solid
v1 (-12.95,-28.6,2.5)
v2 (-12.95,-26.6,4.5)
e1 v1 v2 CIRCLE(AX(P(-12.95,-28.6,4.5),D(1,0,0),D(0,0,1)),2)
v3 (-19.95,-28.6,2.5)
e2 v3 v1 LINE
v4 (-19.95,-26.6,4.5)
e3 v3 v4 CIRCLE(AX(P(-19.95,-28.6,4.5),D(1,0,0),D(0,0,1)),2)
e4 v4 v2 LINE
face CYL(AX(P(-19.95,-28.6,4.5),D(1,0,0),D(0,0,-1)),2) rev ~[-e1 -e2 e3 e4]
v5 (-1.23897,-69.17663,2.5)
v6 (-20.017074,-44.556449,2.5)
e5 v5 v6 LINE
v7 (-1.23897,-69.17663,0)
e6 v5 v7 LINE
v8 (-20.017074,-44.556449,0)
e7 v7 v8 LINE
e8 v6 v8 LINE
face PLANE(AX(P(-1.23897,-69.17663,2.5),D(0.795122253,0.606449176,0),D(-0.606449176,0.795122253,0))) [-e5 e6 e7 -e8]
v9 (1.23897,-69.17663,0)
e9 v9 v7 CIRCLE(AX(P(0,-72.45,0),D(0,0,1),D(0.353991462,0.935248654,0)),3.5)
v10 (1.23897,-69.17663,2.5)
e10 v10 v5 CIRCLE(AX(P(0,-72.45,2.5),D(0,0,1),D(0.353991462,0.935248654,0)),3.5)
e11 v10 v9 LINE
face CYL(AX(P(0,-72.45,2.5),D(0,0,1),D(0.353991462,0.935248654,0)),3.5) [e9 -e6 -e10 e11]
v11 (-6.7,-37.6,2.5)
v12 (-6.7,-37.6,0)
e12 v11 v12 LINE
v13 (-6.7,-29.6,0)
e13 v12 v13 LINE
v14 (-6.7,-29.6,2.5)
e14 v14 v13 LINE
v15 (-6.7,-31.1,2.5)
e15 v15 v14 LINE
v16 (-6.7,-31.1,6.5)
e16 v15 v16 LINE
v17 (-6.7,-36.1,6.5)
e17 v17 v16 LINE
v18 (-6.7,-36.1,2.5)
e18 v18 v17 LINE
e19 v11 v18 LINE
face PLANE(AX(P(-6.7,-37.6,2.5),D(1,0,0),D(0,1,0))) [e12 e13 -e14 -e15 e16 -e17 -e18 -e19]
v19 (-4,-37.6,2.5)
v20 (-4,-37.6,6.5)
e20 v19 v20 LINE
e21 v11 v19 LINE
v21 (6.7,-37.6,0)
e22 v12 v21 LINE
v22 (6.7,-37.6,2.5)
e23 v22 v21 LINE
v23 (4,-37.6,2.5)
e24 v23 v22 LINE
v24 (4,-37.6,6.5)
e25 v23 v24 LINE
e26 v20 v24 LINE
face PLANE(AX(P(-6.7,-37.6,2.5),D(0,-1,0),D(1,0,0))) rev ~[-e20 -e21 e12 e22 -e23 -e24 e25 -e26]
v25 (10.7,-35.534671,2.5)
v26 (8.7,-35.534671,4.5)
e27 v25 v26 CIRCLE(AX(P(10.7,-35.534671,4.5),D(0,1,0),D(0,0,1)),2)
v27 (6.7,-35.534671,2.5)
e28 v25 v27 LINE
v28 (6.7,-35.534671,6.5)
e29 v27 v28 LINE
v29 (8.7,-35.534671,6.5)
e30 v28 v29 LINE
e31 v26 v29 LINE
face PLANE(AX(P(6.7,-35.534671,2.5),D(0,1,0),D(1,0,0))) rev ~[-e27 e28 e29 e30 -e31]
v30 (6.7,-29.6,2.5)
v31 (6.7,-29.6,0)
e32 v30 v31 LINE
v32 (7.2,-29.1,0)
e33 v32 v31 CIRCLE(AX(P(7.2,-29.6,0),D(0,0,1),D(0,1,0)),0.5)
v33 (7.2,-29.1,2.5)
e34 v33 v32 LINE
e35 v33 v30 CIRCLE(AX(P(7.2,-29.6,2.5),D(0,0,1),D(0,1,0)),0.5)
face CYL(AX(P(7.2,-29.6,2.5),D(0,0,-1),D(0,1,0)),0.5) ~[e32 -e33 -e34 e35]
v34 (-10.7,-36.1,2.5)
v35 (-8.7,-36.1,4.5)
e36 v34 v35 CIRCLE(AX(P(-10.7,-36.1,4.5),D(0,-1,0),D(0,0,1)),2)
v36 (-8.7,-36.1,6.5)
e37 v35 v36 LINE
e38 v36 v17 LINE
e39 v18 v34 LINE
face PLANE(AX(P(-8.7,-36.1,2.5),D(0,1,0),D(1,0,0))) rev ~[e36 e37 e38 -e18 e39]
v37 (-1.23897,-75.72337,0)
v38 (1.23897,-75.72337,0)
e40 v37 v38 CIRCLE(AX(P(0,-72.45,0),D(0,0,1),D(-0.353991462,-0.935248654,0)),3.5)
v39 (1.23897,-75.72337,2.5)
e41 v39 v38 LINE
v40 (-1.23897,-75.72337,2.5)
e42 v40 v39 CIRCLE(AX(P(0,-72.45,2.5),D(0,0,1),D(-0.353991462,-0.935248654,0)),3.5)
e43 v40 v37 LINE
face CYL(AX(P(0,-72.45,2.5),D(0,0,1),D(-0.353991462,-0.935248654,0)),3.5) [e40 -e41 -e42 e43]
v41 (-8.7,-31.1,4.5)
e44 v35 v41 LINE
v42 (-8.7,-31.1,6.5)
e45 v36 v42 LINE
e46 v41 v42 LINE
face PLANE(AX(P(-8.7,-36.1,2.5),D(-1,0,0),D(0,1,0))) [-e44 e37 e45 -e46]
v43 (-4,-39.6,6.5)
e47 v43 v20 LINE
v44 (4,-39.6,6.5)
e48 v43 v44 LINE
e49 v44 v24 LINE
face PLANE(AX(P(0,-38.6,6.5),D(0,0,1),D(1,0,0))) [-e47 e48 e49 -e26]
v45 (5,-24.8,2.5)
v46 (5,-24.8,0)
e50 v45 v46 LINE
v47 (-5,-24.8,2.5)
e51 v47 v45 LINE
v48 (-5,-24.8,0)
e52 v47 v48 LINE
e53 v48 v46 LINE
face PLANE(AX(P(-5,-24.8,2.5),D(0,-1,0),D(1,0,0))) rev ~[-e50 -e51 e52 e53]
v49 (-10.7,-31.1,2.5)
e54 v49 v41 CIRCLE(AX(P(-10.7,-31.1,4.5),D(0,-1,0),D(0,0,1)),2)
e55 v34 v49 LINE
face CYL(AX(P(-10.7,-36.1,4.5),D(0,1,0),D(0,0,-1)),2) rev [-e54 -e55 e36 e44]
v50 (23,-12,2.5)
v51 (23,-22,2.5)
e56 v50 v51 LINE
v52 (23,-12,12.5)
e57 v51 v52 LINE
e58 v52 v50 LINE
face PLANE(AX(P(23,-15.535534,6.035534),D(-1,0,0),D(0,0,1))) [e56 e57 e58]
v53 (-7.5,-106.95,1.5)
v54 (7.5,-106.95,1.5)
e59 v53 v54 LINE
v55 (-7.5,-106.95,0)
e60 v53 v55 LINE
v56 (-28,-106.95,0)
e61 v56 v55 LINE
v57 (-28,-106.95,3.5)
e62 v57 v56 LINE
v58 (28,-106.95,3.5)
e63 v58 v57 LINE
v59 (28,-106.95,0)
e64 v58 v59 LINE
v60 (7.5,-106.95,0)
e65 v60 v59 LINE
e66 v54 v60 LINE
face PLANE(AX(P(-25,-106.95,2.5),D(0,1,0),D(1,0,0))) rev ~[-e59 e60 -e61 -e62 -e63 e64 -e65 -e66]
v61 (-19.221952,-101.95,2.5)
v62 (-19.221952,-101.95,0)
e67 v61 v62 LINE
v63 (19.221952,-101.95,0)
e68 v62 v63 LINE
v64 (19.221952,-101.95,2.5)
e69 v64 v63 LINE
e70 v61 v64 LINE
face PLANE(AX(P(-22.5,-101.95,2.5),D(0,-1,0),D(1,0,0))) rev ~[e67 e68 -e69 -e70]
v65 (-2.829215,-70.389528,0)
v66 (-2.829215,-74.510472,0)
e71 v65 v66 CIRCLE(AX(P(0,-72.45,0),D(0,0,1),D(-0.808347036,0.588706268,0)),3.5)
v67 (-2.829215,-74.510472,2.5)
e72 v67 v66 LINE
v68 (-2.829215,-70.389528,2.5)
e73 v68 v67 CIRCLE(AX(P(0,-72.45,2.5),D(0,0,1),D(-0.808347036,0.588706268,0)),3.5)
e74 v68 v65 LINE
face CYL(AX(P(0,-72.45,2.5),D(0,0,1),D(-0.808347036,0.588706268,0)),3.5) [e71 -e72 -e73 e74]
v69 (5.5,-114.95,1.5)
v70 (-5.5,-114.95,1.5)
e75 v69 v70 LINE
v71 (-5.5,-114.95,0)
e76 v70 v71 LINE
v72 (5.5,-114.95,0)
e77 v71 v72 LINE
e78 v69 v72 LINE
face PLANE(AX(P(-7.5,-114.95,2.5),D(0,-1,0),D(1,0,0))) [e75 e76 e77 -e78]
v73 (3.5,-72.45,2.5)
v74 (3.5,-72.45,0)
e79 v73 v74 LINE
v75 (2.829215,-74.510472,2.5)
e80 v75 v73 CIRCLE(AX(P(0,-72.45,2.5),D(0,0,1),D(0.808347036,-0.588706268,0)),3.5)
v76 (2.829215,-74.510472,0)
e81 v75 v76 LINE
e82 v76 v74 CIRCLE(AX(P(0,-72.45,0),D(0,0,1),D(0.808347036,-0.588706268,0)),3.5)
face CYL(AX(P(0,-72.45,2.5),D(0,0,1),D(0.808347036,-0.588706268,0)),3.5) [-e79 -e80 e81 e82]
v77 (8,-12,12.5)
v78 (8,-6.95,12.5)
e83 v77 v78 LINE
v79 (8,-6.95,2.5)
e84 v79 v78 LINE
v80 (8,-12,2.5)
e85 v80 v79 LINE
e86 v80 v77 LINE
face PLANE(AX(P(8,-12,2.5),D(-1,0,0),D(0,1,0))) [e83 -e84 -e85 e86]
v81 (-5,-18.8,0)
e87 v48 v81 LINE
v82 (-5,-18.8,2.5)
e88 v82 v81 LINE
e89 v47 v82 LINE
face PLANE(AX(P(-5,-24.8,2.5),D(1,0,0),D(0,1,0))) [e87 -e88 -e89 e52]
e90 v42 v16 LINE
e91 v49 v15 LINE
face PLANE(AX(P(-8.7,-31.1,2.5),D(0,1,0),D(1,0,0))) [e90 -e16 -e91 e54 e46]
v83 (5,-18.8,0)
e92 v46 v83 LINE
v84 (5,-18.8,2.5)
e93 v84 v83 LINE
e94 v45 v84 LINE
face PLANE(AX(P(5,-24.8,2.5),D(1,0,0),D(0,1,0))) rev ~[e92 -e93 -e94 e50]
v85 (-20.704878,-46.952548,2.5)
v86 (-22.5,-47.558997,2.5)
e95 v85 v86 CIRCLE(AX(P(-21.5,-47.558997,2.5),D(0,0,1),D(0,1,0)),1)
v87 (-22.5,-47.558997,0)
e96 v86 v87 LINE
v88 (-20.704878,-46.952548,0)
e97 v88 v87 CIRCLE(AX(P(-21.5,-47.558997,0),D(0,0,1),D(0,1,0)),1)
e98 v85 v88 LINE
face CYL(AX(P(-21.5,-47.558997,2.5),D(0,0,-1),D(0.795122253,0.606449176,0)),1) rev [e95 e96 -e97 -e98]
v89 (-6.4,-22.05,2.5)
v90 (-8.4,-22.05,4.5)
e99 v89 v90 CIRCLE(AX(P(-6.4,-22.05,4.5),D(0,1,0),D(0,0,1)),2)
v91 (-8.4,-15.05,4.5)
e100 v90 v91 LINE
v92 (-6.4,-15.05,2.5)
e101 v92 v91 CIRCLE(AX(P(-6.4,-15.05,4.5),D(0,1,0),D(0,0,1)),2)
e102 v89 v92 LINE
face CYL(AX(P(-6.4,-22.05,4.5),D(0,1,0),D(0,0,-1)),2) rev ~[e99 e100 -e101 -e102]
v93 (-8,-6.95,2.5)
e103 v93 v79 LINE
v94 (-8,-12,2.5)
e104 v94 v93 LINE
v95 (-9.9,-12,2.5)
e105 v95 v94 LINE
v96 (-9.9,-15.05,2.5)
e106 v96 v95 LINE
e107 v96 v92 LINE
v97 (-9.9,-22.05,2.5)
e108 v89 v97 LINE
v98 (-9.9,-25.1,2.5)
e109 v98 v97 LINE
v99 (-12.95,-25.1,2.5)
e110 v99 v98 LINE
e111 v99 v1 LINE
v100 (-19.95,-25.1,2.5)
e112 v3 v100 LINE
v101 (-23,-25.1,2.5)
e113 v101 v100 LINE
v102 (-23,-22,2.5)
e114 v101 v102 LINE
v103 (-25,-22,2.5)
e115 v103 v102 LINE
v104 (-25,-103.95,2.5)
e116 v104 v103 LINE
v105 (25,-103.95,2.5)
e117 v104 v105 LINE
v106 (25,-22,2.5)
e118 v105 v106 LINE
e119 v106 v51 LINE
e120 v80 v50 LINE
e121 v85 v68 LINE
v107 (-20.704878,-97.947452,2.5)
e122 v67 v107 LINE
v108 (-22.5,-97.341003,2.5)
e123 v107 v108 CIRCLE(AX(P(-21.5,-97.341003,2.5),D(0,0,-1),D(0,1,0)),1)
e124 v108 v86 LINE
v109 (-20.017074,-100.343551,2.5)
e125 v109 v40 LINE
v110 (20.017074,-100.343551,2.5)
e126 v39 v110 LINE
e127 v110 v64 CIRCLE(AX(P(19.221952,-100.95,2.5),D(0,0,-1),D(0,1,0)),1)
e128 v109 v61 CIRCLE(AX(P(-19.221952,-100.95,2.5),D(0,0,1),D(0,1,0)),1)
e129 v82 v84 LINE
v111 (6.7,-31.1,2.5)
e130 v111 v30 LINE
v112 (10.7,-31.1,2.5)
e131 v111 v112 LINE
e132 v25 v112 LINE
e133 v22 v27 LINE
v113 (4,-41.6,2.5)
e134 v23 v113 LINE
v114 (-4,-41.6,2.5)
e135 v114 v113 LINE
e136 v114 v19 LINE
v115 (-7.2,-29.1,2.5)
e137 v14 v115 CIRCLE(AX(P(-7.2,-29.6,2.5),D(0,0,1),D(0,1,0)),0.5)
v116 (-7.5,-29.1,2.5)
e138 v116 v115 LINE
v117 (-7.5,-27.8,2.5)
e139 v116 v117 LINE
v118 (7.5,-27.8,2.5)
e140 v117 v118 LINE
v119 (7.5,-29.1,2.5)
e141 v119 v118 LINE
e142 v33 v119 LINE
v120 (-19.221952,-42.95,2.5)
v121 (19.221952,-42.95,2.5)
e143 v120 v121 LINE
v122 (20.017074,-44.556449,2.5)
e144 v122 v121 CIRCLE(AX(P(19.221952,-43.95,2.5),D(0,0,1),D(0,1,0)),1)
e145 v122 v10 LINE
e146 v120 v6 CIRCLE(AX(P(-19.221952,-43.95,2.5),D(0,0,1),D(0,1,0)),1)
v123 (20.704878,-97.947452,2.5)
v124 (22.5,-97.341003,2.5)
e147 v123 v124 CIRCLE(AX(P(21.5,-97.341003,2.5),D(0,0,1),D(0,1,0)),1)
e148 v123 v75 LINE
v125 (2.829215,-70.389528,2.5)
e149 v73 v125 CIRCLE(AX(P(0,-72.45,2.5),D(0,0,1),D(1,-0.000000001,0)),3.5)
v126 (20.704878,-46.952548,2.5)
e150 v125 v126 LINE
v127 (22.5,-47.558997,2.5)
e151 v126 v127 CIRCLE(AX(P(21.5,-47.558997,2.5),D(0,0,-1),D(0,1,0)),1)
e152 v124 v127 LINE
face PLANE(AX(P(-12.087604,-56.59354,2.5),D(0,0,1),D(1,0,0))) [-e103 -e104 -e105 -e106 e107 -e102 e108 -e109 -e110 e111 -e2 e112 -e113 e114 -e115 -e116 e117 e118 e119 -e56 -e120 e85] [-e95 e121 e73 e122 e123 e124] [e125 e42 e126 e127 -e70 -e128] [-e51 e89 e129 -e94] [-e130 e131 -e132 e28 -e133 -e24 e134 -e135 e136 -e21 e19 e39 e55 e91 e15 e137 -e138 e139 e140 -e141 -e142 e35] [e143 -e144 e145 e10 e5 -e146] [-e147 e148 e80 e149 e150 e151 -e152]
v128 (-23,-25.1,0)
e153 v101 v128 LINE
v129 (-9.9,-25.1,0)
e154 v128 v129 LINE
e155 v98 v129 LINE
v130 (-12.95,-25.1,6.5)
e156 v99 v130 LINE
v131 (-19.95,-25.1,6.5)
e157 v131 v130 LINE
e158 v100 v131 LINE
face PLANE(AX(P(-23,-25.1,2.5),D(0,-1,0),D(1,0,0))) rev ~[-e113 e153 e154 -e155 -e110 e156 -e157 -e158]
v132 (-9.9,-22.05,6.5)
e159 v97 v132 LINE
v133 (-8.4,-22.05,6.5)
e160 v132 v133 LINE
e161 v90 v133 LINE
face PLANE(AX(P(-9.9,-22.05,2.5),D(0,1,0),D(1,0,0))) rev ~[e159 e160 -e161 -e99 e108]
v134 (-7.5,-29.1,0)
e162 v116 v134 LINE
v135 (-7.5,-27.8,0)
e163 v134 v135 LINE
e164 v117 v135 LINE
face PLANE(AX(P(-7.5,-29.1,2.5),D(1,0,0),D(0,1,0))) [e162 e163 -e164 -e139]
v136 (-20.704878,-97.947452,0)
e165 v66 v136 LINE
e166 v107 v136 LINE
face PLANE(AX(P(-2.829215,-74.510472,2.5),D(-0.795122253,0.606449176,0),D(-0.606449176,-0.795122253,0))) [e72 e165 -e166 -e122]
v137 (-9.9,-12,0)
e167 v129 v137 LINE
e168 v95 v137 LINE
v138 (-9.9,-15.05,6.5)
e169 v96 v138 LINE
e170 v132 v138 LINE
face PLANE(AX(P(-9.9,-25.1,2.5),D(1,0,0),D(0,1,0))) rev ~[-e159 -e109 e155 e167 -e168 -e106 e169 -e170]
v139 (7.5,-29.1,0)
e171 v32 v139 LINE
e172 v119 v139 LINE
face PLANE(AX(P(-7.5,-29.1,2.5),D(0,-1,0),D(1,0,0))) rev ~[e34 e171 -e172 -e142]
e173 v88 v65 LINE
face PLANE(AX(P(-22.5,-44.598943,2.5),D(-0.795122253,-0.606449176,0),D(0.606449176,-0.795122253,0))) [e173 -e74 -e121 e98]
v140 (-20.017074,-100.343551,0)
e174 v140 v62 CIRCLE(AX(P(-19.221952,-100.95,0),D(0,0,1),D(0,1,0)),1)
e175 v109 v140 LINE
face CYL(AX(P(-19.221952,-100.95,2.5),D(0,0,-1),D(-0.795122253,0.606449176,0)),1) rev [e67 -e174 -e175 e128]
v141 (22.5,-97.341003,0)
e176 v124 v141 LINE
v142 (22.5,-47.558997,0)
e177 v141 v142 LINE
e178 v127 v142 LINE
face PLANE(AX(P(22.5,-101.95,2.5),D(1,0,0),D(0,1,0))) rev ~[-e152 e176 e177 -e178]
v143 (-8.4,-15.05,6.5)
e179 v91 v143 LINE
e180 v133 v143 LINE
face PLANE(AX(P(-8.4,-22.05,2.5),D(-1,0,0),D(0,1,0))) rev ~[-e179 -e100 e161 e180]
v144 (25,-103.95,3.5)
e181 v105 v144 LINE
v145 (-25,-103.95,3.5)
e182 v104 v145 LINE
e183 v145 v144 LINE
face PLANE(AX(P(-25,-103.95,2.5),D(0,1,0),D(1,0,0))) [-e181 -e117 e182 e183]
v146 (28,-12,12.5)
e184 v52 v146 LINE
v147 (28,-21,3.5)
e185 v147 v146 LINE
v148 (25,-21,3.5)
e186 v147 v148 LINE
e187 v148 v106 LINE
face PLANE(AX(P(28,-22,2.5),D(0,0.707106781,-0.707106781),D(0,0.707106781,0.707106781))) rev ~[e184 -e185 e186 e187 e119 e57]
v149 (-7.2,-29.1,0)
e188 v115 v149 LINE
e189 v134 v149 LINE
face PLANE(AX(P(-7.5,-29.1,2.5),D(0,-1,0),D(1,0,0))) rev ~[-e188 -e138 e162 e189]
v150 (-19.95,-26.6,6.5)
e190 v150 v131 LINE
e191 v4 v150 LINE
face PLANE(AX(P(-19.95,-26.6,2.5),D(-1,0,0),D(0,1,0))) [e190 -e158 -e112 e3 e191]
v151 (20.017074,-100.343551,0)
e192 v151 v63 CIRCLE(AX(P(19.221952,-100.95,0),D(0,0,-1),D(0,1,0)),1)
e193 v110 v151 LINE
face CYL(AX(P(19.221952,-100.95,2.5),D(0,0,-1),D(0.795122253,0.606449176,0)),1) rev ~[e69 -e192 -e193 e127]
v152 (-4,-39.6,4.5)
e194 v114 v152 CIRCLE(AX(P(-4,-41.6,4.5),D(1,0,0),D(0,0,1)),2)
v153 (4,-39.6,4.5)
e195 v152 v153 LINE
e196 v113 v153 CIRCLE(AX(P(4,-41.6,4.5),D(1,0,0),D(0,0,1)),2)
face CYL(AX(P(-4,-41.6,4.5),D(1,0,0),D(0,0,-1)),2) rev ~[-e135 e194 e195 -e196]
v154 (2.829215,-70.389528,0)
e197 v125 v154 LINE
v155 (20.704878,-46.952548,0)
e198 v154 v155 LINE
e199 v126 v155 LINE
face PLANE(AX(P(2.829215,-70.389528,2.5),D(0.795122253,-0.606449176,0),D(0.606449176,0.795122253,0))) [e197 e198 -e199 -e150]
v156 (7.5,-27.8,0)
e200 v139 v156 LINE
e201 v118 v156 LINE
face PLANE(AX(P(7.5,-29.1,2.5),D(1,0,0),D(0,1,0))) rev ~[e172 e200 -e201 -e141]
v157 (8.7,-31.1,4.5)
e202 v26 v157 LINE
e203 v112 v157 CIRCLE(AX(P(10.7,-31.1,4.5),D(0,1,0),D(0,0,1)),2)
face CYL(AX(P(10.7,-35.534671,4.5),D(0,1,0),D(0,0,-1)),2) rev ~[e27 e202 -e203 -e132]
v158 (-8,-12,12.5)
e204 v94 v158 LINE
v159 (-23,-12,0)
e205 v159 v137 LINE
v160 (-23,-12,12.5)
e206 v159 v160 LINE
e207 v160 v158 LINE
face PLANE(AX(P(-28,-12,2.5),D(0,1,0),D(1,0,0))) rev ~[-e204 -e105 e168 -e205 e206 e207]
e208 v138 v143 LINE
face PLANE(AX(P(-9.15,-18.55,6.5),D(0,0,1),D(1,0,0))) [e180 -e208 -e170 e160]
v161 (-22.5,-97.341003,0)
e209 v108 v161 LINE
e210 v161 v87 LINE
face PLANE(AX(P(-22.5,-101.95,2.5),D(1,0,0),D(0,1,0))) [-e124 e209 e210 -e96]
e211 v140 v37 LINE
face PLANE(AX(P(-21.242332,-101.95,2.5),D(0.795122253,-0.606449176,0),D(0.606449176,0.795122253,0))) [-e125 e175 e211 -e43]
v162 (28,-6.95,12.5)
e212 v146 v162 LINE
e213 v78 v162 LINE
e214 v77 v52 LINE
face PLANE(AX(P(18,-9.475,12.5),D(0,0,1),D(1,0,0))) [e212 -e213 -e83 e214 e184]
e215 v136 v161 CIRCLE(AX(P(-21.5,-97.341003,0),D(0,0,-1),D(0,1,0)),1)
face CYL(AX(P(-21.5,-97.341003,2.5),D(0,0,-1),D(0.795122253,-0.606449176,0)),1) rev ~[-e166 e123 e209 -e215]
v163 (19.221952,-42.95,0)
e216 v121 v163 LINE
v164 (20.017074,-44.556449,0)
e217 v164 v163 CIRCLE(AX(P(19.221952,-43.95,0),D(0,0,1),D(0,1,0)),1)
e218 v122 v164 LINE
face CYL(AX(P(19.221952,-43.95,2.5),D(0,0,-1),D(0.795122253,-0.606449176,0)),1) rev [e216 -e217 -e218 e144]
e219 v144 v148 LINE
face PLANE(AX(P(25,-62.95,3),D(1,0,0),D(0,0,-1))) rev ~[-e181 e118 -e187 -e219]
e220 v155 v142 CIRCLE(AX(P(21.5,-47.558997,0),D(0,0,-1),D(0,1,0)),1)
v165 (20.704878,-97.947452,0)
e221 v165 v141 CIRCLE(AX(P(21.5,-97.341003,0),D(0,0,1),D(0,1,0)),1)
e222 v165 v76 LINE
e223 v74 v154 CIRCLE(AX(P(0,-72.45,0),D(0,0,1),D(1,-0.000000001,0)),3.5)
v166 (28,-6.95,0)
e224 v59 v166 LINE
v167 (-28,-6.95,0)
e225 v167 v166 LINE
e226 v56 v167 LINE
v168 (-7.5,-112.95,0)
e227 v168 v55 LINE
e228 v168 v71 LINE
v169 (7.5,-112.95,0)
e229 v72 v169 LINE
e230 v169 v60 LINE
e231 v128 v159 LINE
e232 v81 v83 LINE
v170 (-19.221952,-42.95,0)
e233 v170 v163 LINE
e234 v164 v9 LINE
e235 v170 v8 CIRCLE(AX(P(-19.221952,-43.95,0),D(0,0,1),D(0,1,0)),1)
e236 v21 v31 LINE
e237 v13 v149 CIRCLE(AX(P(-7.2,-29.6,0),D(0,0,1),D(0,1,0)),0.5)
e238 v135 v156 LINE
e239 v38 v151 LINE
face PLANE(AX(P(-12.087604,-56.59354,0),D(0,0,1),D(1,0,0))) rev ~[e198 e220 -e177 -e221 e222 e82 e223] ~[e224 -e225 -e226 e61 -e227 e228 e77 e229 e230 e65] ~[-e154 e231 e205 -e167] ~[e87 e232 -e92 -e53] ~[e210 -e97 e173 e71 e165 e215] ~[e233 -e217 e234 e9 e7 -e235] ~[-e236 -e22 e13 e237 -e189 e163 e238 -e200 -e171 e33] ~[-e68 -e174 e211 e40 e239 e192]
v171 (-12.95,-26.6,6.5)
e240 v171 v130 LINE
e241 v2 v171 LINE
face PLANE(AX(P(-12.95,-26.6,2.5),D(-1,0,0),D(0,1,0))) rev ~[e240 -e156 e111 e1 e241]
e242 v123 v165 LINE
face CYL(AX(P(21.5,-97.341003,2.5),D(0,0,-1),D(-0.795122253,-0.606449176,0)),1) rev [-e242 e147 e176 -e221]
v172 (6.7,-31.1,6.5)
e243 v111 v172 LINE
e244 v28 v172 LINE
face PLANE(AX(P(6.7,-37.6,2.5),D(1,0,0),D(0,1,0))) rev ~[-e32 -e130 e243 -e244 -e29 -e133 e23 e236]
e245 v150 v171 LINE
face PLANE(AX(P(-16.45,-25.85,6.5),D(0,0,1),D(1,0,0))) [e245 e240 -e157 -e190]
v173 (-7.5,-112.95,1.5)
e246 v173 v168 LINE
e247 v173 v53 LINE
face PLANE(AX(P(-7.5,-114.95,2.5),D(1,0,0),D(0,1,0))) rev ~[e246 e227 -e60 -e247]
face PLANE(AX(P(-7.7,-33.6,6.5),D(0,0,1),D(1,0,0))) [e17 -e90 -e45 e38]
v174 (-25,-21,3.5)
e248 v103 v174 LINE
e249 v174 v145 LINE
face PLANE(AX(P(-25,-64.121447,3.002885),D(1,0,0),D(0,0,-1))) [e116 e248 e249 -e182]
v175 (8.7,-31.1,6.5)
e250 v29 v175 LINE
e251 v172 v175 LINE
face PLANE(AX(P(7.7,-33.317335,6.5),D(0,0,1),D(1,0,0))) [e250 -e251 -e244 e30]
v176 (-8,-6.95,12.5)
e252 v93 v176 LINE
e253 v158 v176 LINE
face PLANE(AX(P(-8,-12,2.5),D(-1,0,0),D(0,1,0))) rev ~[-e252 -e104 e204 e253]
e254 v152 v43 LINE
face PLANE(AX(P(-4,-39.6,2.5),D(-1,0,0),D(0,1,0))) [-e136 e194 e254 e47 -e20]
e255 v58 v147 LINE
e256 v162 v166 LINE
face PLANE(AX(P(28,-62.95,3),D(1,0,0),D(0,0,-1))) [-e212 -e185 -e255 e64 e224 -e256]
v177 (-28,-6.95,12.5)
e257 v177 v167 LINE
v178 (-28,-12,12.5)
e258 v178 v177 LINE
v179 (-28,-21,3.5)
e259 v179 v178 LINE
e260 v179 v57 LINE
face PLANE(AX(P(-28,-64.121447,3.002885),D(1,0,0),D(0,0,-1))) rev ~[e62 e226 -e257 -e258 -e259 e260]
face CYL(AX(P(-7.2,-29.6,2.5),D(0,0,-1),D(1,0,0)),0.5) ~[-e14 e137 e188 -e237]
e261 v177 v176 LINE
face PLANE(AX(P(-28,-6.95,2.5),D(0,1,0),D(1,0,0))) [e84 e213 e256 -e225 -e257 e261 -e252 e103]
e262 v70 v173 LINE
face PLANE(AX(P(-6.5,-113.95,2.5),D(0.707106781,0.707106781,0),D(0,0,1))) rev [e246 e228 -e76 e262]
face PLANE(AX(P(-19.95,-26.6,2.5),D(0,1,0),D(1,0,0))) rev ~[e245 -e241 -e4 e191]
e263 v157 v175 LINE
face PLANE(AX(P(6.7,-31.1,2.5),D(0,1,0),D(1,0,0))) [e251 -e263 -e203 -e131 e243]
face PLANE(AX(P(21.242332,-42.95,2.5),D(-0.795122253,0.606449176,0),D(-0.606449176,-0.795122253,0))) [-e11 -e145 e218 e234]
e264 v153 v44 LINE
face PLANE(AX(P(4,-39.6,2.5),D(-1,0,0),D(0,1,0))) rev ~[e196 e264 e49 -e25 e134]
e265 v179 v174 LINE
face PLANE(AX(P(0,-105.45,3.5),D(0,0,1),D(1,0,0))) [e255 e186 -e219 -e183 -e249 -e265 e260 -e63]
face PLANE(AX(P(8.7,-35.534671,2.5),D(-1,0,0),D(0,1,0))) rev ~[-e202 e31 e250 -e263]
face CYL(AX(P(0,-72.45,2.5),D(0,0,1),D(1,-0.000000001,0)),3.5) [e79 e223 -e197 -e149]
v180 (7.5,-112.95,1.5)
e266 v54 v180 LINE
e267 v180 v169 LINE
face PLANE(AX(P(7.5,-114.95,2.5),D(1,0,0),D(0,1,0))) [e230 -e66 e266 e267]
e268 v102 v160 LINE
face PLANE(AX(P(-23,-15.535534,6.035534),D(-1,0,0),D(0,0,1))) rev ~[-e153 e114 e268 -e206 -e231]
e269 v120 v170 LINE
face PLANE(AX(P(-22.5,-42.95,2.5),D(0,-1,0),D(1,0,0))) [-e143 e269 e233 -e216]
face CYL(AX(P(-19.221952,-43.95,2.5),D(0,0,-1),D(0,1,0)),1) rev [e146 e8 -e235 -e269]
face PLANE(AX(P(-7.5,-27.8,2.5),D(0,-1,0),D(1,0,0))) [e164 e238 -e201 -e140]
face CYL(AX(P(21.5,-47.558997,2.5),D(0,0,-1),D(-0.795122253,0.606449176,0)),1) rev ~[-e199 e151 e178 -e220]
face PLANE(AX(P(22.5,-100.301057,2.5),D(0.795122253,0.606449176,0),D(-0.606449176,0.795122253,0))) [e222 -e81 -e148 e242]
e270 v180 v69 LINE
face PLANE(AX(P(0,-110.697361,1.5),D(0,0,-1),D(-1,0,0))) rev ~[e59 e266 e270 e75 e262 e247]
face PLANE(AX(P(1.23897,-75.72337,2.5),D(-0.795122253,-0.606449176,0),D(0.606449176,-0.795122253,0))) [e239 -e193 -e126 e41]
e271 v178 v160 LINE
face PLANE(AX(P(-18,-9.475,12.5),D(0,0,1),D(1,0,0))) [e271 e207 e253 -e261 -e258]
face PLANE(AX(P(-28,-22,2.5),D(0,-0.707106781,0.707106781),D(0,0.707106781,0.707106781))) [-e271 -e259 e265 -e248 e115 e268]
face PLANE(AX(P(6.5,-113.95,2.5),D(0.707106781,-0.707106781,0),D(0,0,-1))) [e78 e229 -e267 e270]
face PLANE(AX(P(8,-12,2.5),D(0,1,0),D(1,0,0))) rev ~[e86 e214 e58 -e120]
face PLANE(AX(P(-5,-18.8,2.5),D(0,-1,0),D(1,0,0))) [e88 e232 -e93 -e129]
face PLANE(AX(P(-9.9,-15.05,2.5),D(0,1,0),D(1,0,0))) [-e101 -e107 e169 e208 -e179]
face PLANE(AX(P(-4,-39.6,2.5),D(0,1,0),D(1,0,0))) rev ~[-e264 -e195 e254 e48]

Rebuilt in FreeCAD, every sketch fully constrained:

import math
import FreeCAD as App
import Part
import Sketcher

V = App.Vector
Q = App.Units.Quantity


def edges_at(feature, points):
    """Names of the edges that pass closest to the given points."""
    edges = feature.Shape.Edges
    near = lambda p: min(range(len(edges)), key=lambda i: edges[i].distToShape(Part.Vertex(*p))[0])
    return sorted({f"Edge{near(p) + 1}" for p in points})


def add_polygon(sketch, points):
    """Adds a closed chain of lines whose ends are joined by coincident constraints."""
    first, n = sketch.GeometryCount, len(points)
    for a, b in zip(points, points[1:] + points[:1]):
        sketch.addGeometry(Part.LineSegment(App.Vector(*a, 0), App.Vector(*b, 0)), False)
    for i in range(n):
        sketch.addConstraint(Sketcher.Constraint("Coincident", first + i, 2, first + (i + 1) % n, 1))

doc = App.newDocument("Part")
body = doc.addObject("PartDesign::Body", "Body")

sketch1 = body.newObject("Sketcher::SketchObject", "Sketch")
sketch1.AttachmentSupport = (doc.getObject("XY_Plane"), [""])
sketch1.MapMode = "FlatFace"
add_polygon(sketch1, [(-28, -7), (-28, -107), (28, -107), (28, -7)])
sketch1.addConstraint(Sketcher.Constraint("Vertical", 0))
sketch1.addConstraint(Sketcher.Constraint("Horizontal", 1))
sketch1.addConstraint(Sketcher.Constraint("Vertical", 2))
sketch1.addConstraint(Sketcher.Constraint("Horizontal", 3))
sketch1.addConstraint(Sketcher.Constraint("DistanceX", 1, 1, 1, 2, Q("56 mm")))
sketch1.addConstraint(Sketcher.Constraint("DistanceY", 0, 2, 0, 1, Q("100 mm")))
sketch1.addConstraint(Sketcher.Constraint("DistanceX", 0, 2, -1, 1, Q("28 mm")))
sketch1.addConstraint(Sketcher.Constraint("DistanceY", 0, 2, -1, 1, Q("106.95 mm")))
pad1 = body.newObject("PartDesign::Pad", "Pad")
pad1.Profile = sketch1
pad1.Length = 2.5

sketch2 = body.newObject("Sketcher::SketchObject", "Sketch001")
sketch2.AttachmentSupport = (doc.getObject("XY_Plane"), [""])
sketch2.MapMode = "FlatFace"
sketch2.AttachmentOffset = App.Placement(V(0, 0, 2.5), App.Rotation())
add_polygon(sketch2, [(-28, -7), (-28, -12), (-8, -12), (-8, -7)])
add_polygon(sketch2, [(8, -7), (8, -12), (28, -12), (28, -7)])
sketch2.addConstraint(Sketcher.Constraint("Vertical", 0))
sketch2.addConstraint(Sketcher.Constraint("Horizontal", 1))
sketch2.addConstraint(Sketcher.Constraint("Vertical", 2))
sketch2.addConstraint(Sketcher.Constraint("Horizontal", 3))
sketch2.addConstraint(Sketcher.Constraint("Vertical", 4))
sketch2.addConstraint(Sketcher.Constraint("Horizontal", 5))
sketch2.addConstraint(Sketcher.Constraint("Vertical", 6))
sketch2.addConstraint(Sketcher.Constraint("Horizontal", 7))
sketch2.addConstraint(Sketcher.Constraint("Symmetric", 1, 2, 4, 2, -2))
sketch2.addConstraint(Sketcher.Constraint("Symmetric", 3, 2, 6, 2, -2))
sketch2.addConstraint(Sketcher.Constraint("DistanceX", 1, 1, 1, 2, Q("20 mm")))
sketch2.addConstraint(Sketcher.Constraint("DistanceX", 0, 2, -1, 1, Q("28 mm")))
sketch2.addConstraint(Sketcher.Constraint("DistanceY", 0, 2, -1, 1, Q("12 mm")))
sketch2.addConstraint(Sketcher.Constraint("DistanceY", 0, 2, 0, 1, Q("5.05 mm")))
pad2 = body.newObject("PartDesign::Pad", "Pad001")
pad2.Profile = sketch2
pad2.Length = 10

sketch3 = body.newObject("Sketcher::SketchObject", "Sketch002")
sketch3.AttachmentSupport = (doc.getObject("XY_Plane"), [""])
sketch3.MapMode = "FlatFace"
sketch3.AttachmentOffset = App.Placement(V(0, 0, 2.5), App.Rotation())
add_polygon(sketch3, [(-23, -12), (-23, -25), (-10, -25), (-10, -12)])
sketch3.addConstraint(Sketcher.Constraint("Vertical", 0))
sketch3.addConstraint(Sketcher.Constraint("Horizontal", 1))
sketch3.addConstraint(Sketcher.Constraint("Vertical", 2))
sketch3.addConstraint(Sketcher.Constraint("Horizontal", 3))
sketch3.addConstraint(Sketcher.Constraint("Equal", 3, 0))
sketch3.addConstraint(Sketcher.Constraint("DistanceX", 1, 1, 1, 2, Q("13.1 mm")))
sketch3.addConstraint(Sketcher.Constraint("DistanceX", 0, 2, -1, 1, Q("23 mm")))
sketch3.addConstraint(Sketcher.Constraint("DistanceY", 2, 2, -1, 1, Q("12 mm")))
pocket1 = body.newObject("PartDesign::Pocket", "Pocket")
pocket1.Profile = sketch3
pocket1.Type = "ThroughAll"

sketch4 = body.newObject("Sketcher::SketchObject", "Sketch003")
sketch4.AttachmentSupport = (doc.getObject("YZ_Plane"), [""])
sketch4.MapMode = "FlatFace"
sketch4.AttachmentOffset = App.Placement(V(0, 0, 28), App.Rotation())
add_polygon(sketch4, [(-12, 2), (-12, 12), (-22, 2)])
sketch4.addConstraint(Sketcher.Constraint("Vertical", 0))
sketch4.addConstraint(Sketcher.Constraint("Horizontal", 2))
sketch4.addConstraint(Sketcher.Constraint("Equal", 2, 0))
sketch4.addConstraint(Sketcher.Constraint("DistanceX", 2, 1, 2, 2, Q("10 mm")))
sketch4.addConstraint(Sketcher.Constraint("DistanceX", 0, 2, -1, 1, Q("12 mm")))
sketch4.addConstraint(Sketcher.Constraint("DistanceY", -1, 1, 0, 2, Q("12.5 mm")))
pad3 = body.newObject("PartDesign::Pad", "Pad002")
pad3.Profile = sketch4
pad3.Length = 5
pad3.Reversed = True

sketch5 = body.newObject("Sketcher::SketchObject", "Sketch004")
sketch5.AttachmentSupport = (doc.getObject("YZ_Plane"), [""])
sketch5.MapMode = "FlatFace"
sketch5.AttachmentOffset = App.Placement(V(0, 0, -28), App.Rotation())
add_polygon(sketch5, [(-22, 2), (-12, 12), (-12, 2)])
sketch5.addConstraint(Sketcher.Constraint("Vertical", 1))
sketch5.addConstraint(Sketcher.Constraint("Horizontal", 2))
sketch5.addConstraint(Sketcher.Constraint("Equal", 2, 1))
sketch5.addConstraint(Sketcher.Constraint("DistanceX", 2, 2, 2, 1, Q("10 mm")))
sketch5.addConstraint(Sketcher.Constraint("DistanceX", 0, 2, -1, 1, Q("12 mm")))
sketch5.addConstraint(Sketcher.Constraint("DistanceY", -1, 1, 0, 2, Q("12.5 mm")))
pad4 = body.newObject("PartDesign::Pad", "Pad003")
pad4.Profile = sketch5
pad4.Length = 5

sketch6 = body.newObject("Sketcher::SketchObject", "Sketch005")
sketch6.AttachmentSupport = (doc.getObject("XY_Plane"), [""])
sketch6.MapMode = "FlatFace"
sketch6.AttachmentOffset = App.Placement(V(0, 0, 2.5), App.Rotation())
add_polygon(sketch6, [(-19.9, -25.1), (-19.9, -26.6), (-12.9, -26.6), (-12.9, -25.1)])
add_polygon(sketch6, [(-9.9, -15.1), (-9.9, -22.1), (-8.4, -22.1), (-8.4, -15.1)])
sketch6.addConstraint(Sketcher.Constraint("Vertical", 0))
sketch6.addConstraint(Sketcher.Constraint("Horizontal", 1))
sketch6.addConstraint(Sketcher.Constraint("Vertical", 2))
sketch6.addConstraint(Sketcher.Constraint("Horizontal", 3))
sketch6.addConstraint(Sketcher.Constraint("Vertical", 4))
sketch6.addConstraint(Sketcher.Constraint("Horizontal", 5))
sketch6.addConstraint(Sketcher.Constraint("Vertical", 6))
sketch6.addConstraint(Sketcher.Constraint("Horizontal", 7))
sketch6.addConstraint(Sketcher.Constraint("Equal", 7, 0))
sketch6.addConstraint(Sketcher.Constraint("Equal", 3, 4))
sketch6.addConstraint(Sketcher.Constraint("DistanceX", 1, 1, 1, 2, Q("7 mm")))
sketch6.addConstraint(Sketcher.Constraint("DistanceX", 5, 1, 5, 2, Q("1.5 mm")))
sketch6.addConstraint(Sketcher.Constraint("DistanceY", 0, 2, -1, 1, Q("26.6 mm")))
sketch6.addConstraint(Sketcher.Constraint("DistanceX", 4, 2, -1, 1, Q("9.9 mm")))
sketch6.addConstraint(Sketcher.Constraint("DistanceX", 0, 2, -1, 1, Q("19.95 mm")))
sketch6.addConstraint(Sketcher.Constraint("DistanceY", 4, 2, -1, 1, Q("22.05 mm")))
pad5 = body.newObject("PartDesign::Pad", "Pad004")
pad5.Profile = sketch6
pad5.Length = 4

sketch7 = body.newObject("Sketcher::SketchObject", "Sketch006")
sketch7.AttachmentSupport = (doc.getObject("XY_Plane"), [""])
sketch7.MapMode = "FlatFace"
sketch7.AttachmentOffset = App.Placement(V(0, 0, 2.5), App.Rotation())
add_polygon(sketch7, [(-7.5, -27.8), (-7.5, -29.1), (7.5, -29.1), (7.5, -27.8)])
sketch7.addConstraint(Sketcher.Constraint("Vertical", 0))
sketch7.addConstraint(Sketcher.Constraint("Horizontal", 1))
sketch7.addConstraint(Sketcher.Constraint("Vertical", 2))
sketch7.addConstraint(Sketcher.Constraint("Horizontal", 3))
sketch7.addConstraint(Sketcher.Constraint("DistanceX", 1, 1, 1, 2, Q("15 mm")))
sketch7.addConstraint(Sketcher.Constraint("DistanceY", 0, 2, 0, 1, Q("1.3 mm")))
sketch7.addConstraint(Sketcher.Constraint("DistanceX", 0, 2, -1, 1, Q("7.5 mm")))
sketch7.addConstraint(Sketcher.Constraint("DistanceY", 0, 2, -1, 1, Q("29.1 mm")))
pocket2 = body.newObject("PartDesign::Pocket", "Pocket001")
pocket2.Profile = sketch7
pocket2.Type = "ThroughAll"

sketch8 = body.newObject("Sketcher::SketchObject", "Sketch007")
sketch8.AttachmentSupport = (doc.getObject("XY_Plane"), [""])
sketch8.MapMode = "FlatFace"
sketch8.AttachmentOffset = App.Placement(V(0, 0, 2.5), App.Rotation())
add_polygon(sketch8, [(-7, -29), (-7, -38), (7, -38), (7, -29)])
add_polygon(sketch8, [(-5, -19), (-5, -25), (5, -25), (5, -19)])
sketch8.addConstraint(Sketcher.Constraint("Vertical", 0))
sketch8.addConstraint(Sketcher.Constraint("Horizontal", 1))
sketch8.addConstraint(Sketcher.Constraint("Vertical", 2))
sketch8.addConstraint(Sketcher.Constraint("Horizontal", 3))
sketch8.addConstraint(Sketcher.Constraint("Vertical", 4))
sketch8.addConstraint(Sketcher.Constraint("Horizontal", 5))
sketch8.addConstraint(Sketcher.Constraint("Vertical", 6))
sketch8.addConstraint(Sketcher.Constraint("Horizontal", 7))
sketch8.addConstraint(Sketcher.Constraint("DistanceX", 5, 1, 5, 2, Q("10 mm")))
sketch8.addConstraint(Sketcher.Constraint("DistanceY", 4, 2, 4, 1, Q("6 mm")))
sketch8.addConstraint(Sketcher.Constraint("DistanceX", 1, 1, 1, 2, Q("13.4 mm")))
sketch8.addConstraint(Sketcher.Constraint("DistanceY", 0, 2, 0, 1, Q("8.5 mm")))
sketch8.addConstraint(Sketcher.Constraint("DistanceX", 4, 2, -1, 1, Q("5 mm")))
sketch8.addConstraint(Sketcher.Constraint("DistanceX", 0, 2, -1, 1, Q("6.7 mm")))
sketch8.addConstraint(Sketcher.Constraint("DistanceY", 0, 2, -1, 1, Q("37.6 mm")))
sketch8.addConstraint(Sketcher.Constraint("DistanceY", 4, 2, -1, 1, Q("24.8 mm")))
pocket3 = body.newObject("PartDesign::Pocket", "Pocket002")
pocket3.Profile = sketch8
pocket3.Type = "ThroughAll"
doc.recompute()

fillet = body.newObject("PartDesign::Fillet", "Fillet")
fillet.Base = (pocket3, edges_at(pocket3, [(-16.45, -26.6, 2.5), (-8.4, -18.55, 2.5)]))
fillet.Radius = 2

sketch9 = body.newObject("Sketcher::SketchObject", "Sketch008")
sketch9.AttachmentSupport = (doc.getObject("XY_Plane"), [""])
sketch9.MapMode = "FlatFace"
sketch9.AttachmentOffset = App.Placement(V(0, 0, 2.5), App.Rotation())
add_polygon(sketch9, [(-8, -107), (-8, -115), (8, -115), (8, -107)])
sketch9.addConstraint(Sketcher.Constraint("Vertical", 0))
sketch9.addConstraint(Sketcher.Constraint("Horizontal", 1))
sketch9.addConstraint(Sketcher.Constraint("Vertical", 2))
sketch9.addConstraint(Sketcher.Constraint("Horizontal", 3))
sketch9.addConstraint(Sketcher.Constraint("DistanceX", 1, 1, 1, 2, Q("15 mm")))
sketch9.addConstraint(Sketcher.Constraint("DistanceY", 0, 2, 0, 1, Q("8 mm")))
sketch9.addConstraint(Sketcher.Constraint("DistanceX", 0, 2, -1, 1, Q("7.5 mm")))
sketch9.addConstraint(Sketcher.Constraint("DistanceY", 0, 2, -1, 1, Q("114.95 mm")))
pad6 = body.newObject("PartDesign::Pad", "Pad005")
pad6.Profile = sketch9
pad6.Length = 2.5
pad6.Reversed = True
doc.recompute()

chamfer = body.newObject("PartDesign::Chamfer", "Chamfer")
chamfer.Base = (pad6, edges_at(pad6, [(-7.5, -114.95, 1.25), (7.5, -114.95, 1.25)]))
chamfer.Size = 2

sketch10 = body.newObject("Sketcher::SketchObject", "Sketch009")
sketch10.AttachmentSupport = (doc.getObject("XY_Plane"), [""])
sketch10.MapMode = "FlatFace"
sketch10.AttachmentOffset = App.Placement(V(0, 0, 2.5), App.Rotation())
add_polygon(sketch10, [(-22, -43), (-22, -102), (22, -102), (22, -43)])
sketch10.addConstraint(Sketcher.Constraint("Vertical", 0))
sketch10.addConstraint(Sketcher.Constraint("Horizontal", 1))
sketch10.addConstraint(Sketcher.Constraint("Vertical", 2))
sketch10.addConstraint(Sketcher.Constraint("Horizontal", 3))
sketch10.addConstraint(Sketcher.Constraint("DistanceX", 1, 1, 1, 2, Q("45 mm")))
sketch10.addConstraint(Sketcher.Constraint("DistanceY", 0, 2, 0, 1, Q("59 mm")))
sketch10.addConstraint(Sketcher.Constraint("DistanceX", 0, 2, -1, 1, Q("22.5 mm")))
sketch10.addConstraint(Sketcher.Constraint("DistanceY", 0, 2, -1, 1, Q("101.95 mm")))
pocket4 = body.newObject("PartDesign::Pocket", "Pocket003")
pocket4.Profile = sketch10
pocket4.Length = 4

sketch11 = body.newObject("Sketcher::SketchObject", "Sketch010")
sketch11.AttachmentSupport = (doc.getObject("XY_Plane"), [""])
sketch11.MapMode = "FlatFace"
sketch11.AttachmentOffset = App.Placement(V(0, 0, 2.5), App.Rotation())
sketch11.addGeometry(Part.LineSegment(V(21.2, -43, 0), V(1.2, -69.2, 0)), False)
sketch11.addGeometry(Part.ArcOfCircle(Part.Circle(V(0, -72.5, 0), V(0, 0, 1), 3.5), math.radians(69), math.radians(111)), False)
sketch11.addGeometry(Part.LineSegment(V(-1.2, -69.2, 0), V(-21.2, -43, 0)), False)
sketch11.addGeometry(Part.LineSegment(V(-21.2, -43, 0), V(-22.5, -43, 0)), False)
sketch11.addGeometry(Part.LineSegment(V(-22.5, -43, 0), V(-22.5, -44.6, 0)), False)
sketch11.addGeometry(Part.LineSegment(V(-22.5, -44.6, 0), V(-2.8, -70.4, 0)), False)
sketch11.addGeometry(Part.ArcOfCircle(Part.Circle(V(0, -72.5, 0), V(0, 0, 1), 3.5), math.radians(144), math.radians(216)), False)
sketch11.addGeometry(Part.LineSegment(V(-2.8, -74.5, 0), V(-22.5, -100.3, 0)), False)
sketch11.addGeometry(Part.LineSegment(V(-22.5, -100.3, 0), V(-22.5, -102, 0)), False)
sketch11.addGeometry(Part.LineSegment(V(-22.5, -102, 0), V(-21.2, -102, 0)), False)
sketch11.addGeometry(Part.LineSegment(V(-21.2, -102, 0), V(-1.2, -75.7, 0)), False)
sketch11.addGeometry(Part.ArcOfCircle(Part.Circle(V(0, -72.4, 0), V(0, 0, 1), 3.5), math.radians(-111), math.radians(-69)), False)
sketch11.addGeometry(Part.LineSegment(V(1.2, -75.7, 0), V(21.2, -102, 0)), False)
sketch11.addGeometry(Part.LineSegment(V(21.2, -102, 0), V(22.5, -102, 0)), False)
sketch11.addGeometry(Part.LineSegment(V(22.5, -102, 0), V(22.5, -100.3, 0)), False)
sketch11.addGeometry(Part.LineSegment(V(22.5, -100.3, 0), V(2.8, -74.5, 0)), False)
sketch11.addGeometry(Part.ArcOfCircle(Part.Circle(V(0, -72.5, 0), V(0, 0, 1), 3.5), math.radians(-36), math.radians(0)), False)
sketch11.addGeometry(Part.ArcOfCircle(Part.Circle(V(0, -72.4, 0), V(0, 0, 1), 3.5), math.radians(0), math.radians(36)), False)
sketch11.addGeometry(Part.LineSegment(V(2.8, -70.4, 0), V(22.5, -44.6, 0)), False)
sketch11.addGeometry(Part.LineSegment(V(22.5, -44.6, 0), V(22.5, -43, 0)), False)
sketch11.addGeometry(Part.LineSegment(V(22.5, -43, 0), V(21.2, -43, 0)), False)
sketch11.addConstraint(Sketcher.Constraint("Coincident", 0, 2, 1, 1))
sketch11.addConstraint(Sketcher.Constraint("Coincident", 1, 2, 2, 1))
sketch11.addConstraint(Sketcher.Constraint("Coincident", 2, 2, 3, 1))
sketch11.addConstraint(Sketcher.Constraint("Coincident", 3, 2, 4, 1))
sketch11.addConstraint(Sketcher.Constraint("Coincident", 4, 2, 5, 1))
sketch11.addConstraint(Sketcher.Constraint("Coincident", 5, 2, 6, 1))
sketch11.addConstraint(Sketcher.Constraint("Coincident", 6, 2, 7, 1))
sketch11.addConstraint(Sketcher.Constraint("Coincident", 7, 2, 8, 1))
sketch11.addConstraint(Sketcher.Constraint("Coincident", 8, 2, 9, 1))
sketch11.addConstraint(Sketcher.Constraint("Coincident", 9, 2, 10, 1))
sketch11.addConstraint(Sketcher.Constraint("Coincident", 10, 2, 11, 1))
sketch11.addConstraint(Sketcher.Constraint("Coincident", 11, 2, 12, 1))
sketch11.addConstraint(Sketcher.Constraint("Coincident", 12, 2, 13, 1))
sketch11.addConstraint(Sketcher.Constraint("Coincident", 13, 2, 14, 1))
sketch11.addConstraint(Sketcher.Constraint("Coincident", 14, 2, 15, 1))
sketch11.addConstraint(Sketcher.Constraint("Coincident", 15, 2, 16, 1))
sketch11.addConstraint(Sketcher.Constraint("Tangent", 16, 2, 17, 1))
sketch11.addConstraint(Sketcher.Constraint("Coincident", 17, 2, 18, 1))
sketch11.addConstraint(Sketcher.Constraint("Coincident", 18, 2, 19, 1))
sketch11.addConstraint(Sketcher.Constraint("Coincident", 19, 2, 20, 1))
sketch11.addConstraint(Sketcher.Constraint("Coincident", 20, 2, 0, 1))
sketch11.addConstraint(Sketcher.Constraint("Horizontal", 3))
sketch11.addConstraint(Sketcher.Constraint("Vertical", 4))
sketch11.addConstraint(Sketcher.Constraint("Vertical", 8))
sketch11.addConstraint(Sketcher.Constraint("Horizontal", 9))
sketch11.addConstraint(Sketcher.Constraint("Horizontal", 13))
sketch11.addConstraint(Sketcher.Constraint("Vertical", 14))
sketch11.addConstraint(Sketcher.Constraint("Vertical", 19))
sketch11.addConstraint(Sketcher.Constraint("Horizontal", 20))
sketch11.addConstraint(Sketcher.Constraint("Coincident", 6, 3, 1, 3))
sketch11.addConstraint(Sketcher.Constraint("Coincident", 11, 3, 1, 3))
sketch11.addConstraint(Sketcher.Constraint("Coincident", 16, 3, 1, 3))
sketch11.addConstraint(Sketcher.Constraint("Equal", 1, 6))
sketch11.addConstraint(Sketcher.Constraint("Equal", 6, 11))
sketch11.addConstraint(Sketcher.Constraint("Equal", 11, 16))
sketch11.addConstraint(Sketcher.Constraint("Equal", 16, 17))
sketch11.addConstraint(Sketcher.Constraint("Symmetric", 0, 2, 1, 2, -2))
sketch11.addConstraint(Sketcher.Constraint("Symmetric", 9, 2, 12, 2, -2))
sketch11.addConstraint(Sketcher.Constraint("Symmetric", 7, 2, 14, 2, -2))
sketch11.addConstraint(Sketcher.Constraint("Symmetric", 4, 2, 18, 2, -2))
sketch11.addConstraint(Sketcher.Constraint("Symmetric", 2, 2, 20, 2, -2))
sketch11.addConstraint(Sketcher.Constraint("Parallel", 2, 5))
sketch11.addConstraint(Sketcher.Constraint("Parallel", 0, 7))
sketch11.addConstraint(Sketcher.Constraint("Parallel", 7, 10))
sketch11.addConstraint(Sketcher.Constraint("Parallel", 5, 12))
sketch11.addConstraint(Sketcher.Constraint("Parallel", 12, 15))
sketch11.addConstraint(Sketcher.Constraint("Parallel", 10, 18))
sketch11.addConstraint(Sketcher.Constraint("Horizontal", 17, 3, 16, 2))
sketch11.addConstraint(Sketcher.Constraint("Vertical", 5, 2, 6, 2))
sketch11.addConstraint(Sketcher.Constraint("Vertical", 4, 2, 7, 2))
sketch11.addConstraint(Sketcher.Constraint("Vertical", 2, 2, 9, 2))
sketch11.addConstraint(Sketcher.Constraint("Vertical", 1, 2, 10, 2))
sketch11.addConstraint(Sketcher.Constraint("Radius", 1, Q("3.5 mm")))
sketch11.addConstraint(Sketcher.Constraint("DistanceX", 16, 2, 18, 2, Q("19 mm")))
sketch11.addConstraint(Sketcher.Constraint("DistanceY", 11, 3, 2, 2, Q("29.5 mm")))
sketch11.addConstraint(Sketcher.Constraint("DistanceY", 1, 3, -1, 1, Q("72.45 mm")))
sketch11.addConstraint(Sketcher.Constraint("Distance", 5, Q("32.436 mm")))
sketch11.addConstraint(Sketcher.Constraint("Distance", 0, Q("32.984399 mm")))
sketch11.addConstraint(Sketcher.Constraint("DistanceX", 3, 2, 3, 1, Q("1.257668 mm")))
pad7 = body.newObject("PartDesign::Pad", "Pad006")
pad7.Profile = sketch11
pad7.Length = 2.5
pad7.Reversed = True
doc.recompute()

fillet2 = body.newObject("PartDesign::Fillet", "Fillet001")
fillet2.Base = (pad7, edges_at(pad7, [
    (-22.5, -100.301, 1.25),
    (-21.242, -101.95, 1.25),
    (21.242, -101.95, 1.25),
    (22.5, -100.301, 1.25),
    (22.5, -44.599, 1.25),
    (21.242, -42.95, 1.25),
    (-21.242, -42.95, 1.25),
    (-22.5, -44.599, 1.25),
]))
fillet2.Radius = 1
doc.recompute()

fillet3 = body.newObject("PartDesign::Fillet", "Fillet002")
fillet3.Base = (fillet2, edges_at(fillet2, [(6.7, -29.1, 1.25), (-6.7, -29.1, 1.25)]))
fillet3.Radius = 0.5

sketch12 = body.newObject("Sketcher::SketchObject", "Sketch011")
sketch12.AttachmentSupport = (doc.getObject("XY_Plane"), [""])
sketch12.MapMode = "FlatFace"
sketch12.AttachmentOffset = App.Placement(V(0, 0, 2.5), App.Rotation())
add_polygon(sketch12, [(7.5, -107), (-7.5, -107), (-7.5, -113), (-5.5, -115), (5.5, -115), (7.5, -113)])
sketch12.addConstraint(Sketcher.Constraint("Horizontal", 0))
sketch12.addConstraint(Sketcher.Constraint("Vertical", 1))
sketch12.addConstraint(Sketcher.Constraint("Horizontal", 3))
sketch12.addConstraint(Sketcher.Constraint("Vertical", 5))
sketch12.addConstraint(Sketcher.Constraint("Symmetric", 1, 2, 4, 2, -2))
sketch12.addConstraint(Sketcher.Constraint("Perpendicular", 2, 4))
sketch12.addConstraint(Sketcher.Constraint("Equal", 2, 4))
sketch12.addConstraint(Sketcher.Constraint("DistanceX", 0, 2, 0, 1, Q("15 mm")))
sketch12.addConstraint(Sketcher.Constraint("DistanceX", 3, 1, 3, 2, Q("11 mm")))
sketch12.addConstraint(Sketcher.Constraint("DistanceY", 1, 2, 1, 1, Q("6 mm")))
sketch12.addConstraint(Sketcher.Constraint("DistanceY", 0, 2, -1, 1, Q("106.95 mm")))
pocket5 = body.newObject("PartDesign::Pocket", "Pocket004")
pocket5.Profile = sketch12
pocket5.Length = 1

sketch13 = body.newObject("Sketcher::SketchObject", "Sketch012")
sketch13.AttachmentSupport = (doc.getObject("YZ_Plane"), [""])
sketch13.MapMode = "FlatFace"
sketch13.AttachmentOffset = App.Placement(V(0, 0, 28), App.Rotation())
add_polygon(sketch13, [(-18.9, 3.5), (-107, 3.5), (-107, 2.5), (-18.9, 2.5)])
sketch13.addConstraint(Sketcher.Constraint("Horizontal", 0))
sketch13.addConstraint(Sketcher.Constraint("Vertical", 1))
sketch13.addConstraint(Sketcher.Constraint("Horizontal", 2))
sketch13.addConstraint(Sketcher.Constraint("Vertical", 3))
sketch13.addConstraint(Sketcher.Constraint("DistanceX", 0, 2, 0, 1, Q("88 mm")))
sketch13.addConstraint(Sketcher.Constraint("DistanceY", 1, 2, 1, 1, Q("1 mm")))
sketch13.addConstraint(Sketcher.Constraint("DistanceY", -1, 1, 0, 2, Q("3.5 mm")))
sketch13.addConstraint(Sketcher.Constraint("DistanceX", 0, 2, -1, 1, Q("106.95 mm")))
pad8 = body.newObject("PartDesign::Pad", "Pad007")
pad8.Profile = sketch13
pad8.Length = 3
pad8.Reversed = True

sketch14 = body.newObject("Sketcher::SketchObject", "Sketch013")
sketch14.AttachmentSupport = (doc.getObject("YZ_Plane"), [""])
sketch14.MapMode = "FlatFace"
sketch14.AttachmentOffset = App.Placement(V(0, 0, -28), App.Rotation())
add_polygon(sketch14, [(-107, 3.5), (-21, 3.5), (-22, 2.5), (-107, 2.5)])
sketch14.addConstraint(Sketcher.Constraint("Horizontal", 0))
sketch14.addConstraint(Sketcher.Constraint("Horizontal", 2))
sketch14.addConstraint(Sketcher.Constraint("Vertical", 3))
sketch14.addConstraint(Sketcher.Constraint("DistanceY", 3, 1, 3, 2, Q("1 mm")))
sketch14.addConstraint(Sketcher.Constraint("Angle", 1, Q("-135 deg")))
sketch14.addConstraint(Sketcher.Constraint("DistanceX", 0, 2, -1, 1, Q("21 mm")))
sketch14.addConstraint(Sketcher.Constraint("DistanceX", 0, 1, 0, 2, Q("85.95 mm")))
sketch14.addConstraint(Sketcher.Constraint("DistanceY", -1, 1, 0, 2, Q("3.5 mm")))
pad9 = body.newObject("PartDesign::Pad", "Pad008")
pad9.Profile = sketch14
pad9.Length = 3

sketch15 = body.newObject("Sketcher::SketchObject", "Sketch014")
sketch15.AttachmentSupport = (doc.getObject("XY_Plane"), [""])
sketch15.MapMode = "FlatFace"
sketch15.AttachmentOffset = App.Placement(V(0, 0, 2.5), App.Rotation())
add_polygon(sketch15, [(-25, -104), (-25, -107), (25, -107), (25, -104)])
sketch15.addConstraint(Sketcher.Constraint("Vertical", 0))
sketch15.addConstraint(Sketcher.Constraint("Horizontal", 1))
sketch15.addConstraint(Sketcher.Constraint("Vertical", 2))
sketch15.addConstraint(Sketcher.Constraint("Horizontal", 3))
sketch15.addConstraint(Sketcher.Constraint("DistanceX", 1, 1, 1, 2, Q("50 mm")))
sketch15.addConstraint(Sketcher.Constraint("DistanceY", 0, 2, 0, 1, Q("3 mm")))
sketch15.addConstraint(Sketcher.Constraint("DistanceX", 0, 2, -1, 1, Q("25 mm")))
sketch15.addConstraint(Sketcher.Constraint("DistanceY", 0, 2, -1, 1, Q("106.95 mm")))
pad10 = body.newObject("PartDesign::Pad", "Pad009")
pad10.Profile = sketch15
pad10.Length = 1

sketch16 = body.newObject("Sketcher::SketchObject", "Sketch015")
sketch16.AttachmentSupport = (doc.getObject("XY_Plane"), [""])
sketch16.MapMode = "FlatFace"
sketch16.AttachmentOffset = App.Placement(V(0, 0, 2.5), App.Rotation())
add_polygon(sketch16, [(-8.7, -31.1), (-8.7, -36.1), (-6.7, -36.1), (-6.7, -31.1)])
add_polygon(sketch16, [(-4, -37.6), (-4, -39.6), (4, -39.6), (4, -37.6)])
add_polygon(sketch16, [(6.7, -31.1), (6.7, -35.5), (8.7, -35.5), (8.7, -31.1)])
sketch16.addConstraint(Sketcher.Constraint("Vertical", 0))
sketch16.addConstraint(Sketcher.Constraint("Horizontal", 1))
sketch16.addConstraint(Sketcher.Constraint("Vertical", 2))
sketch16.addConstraint(Sketcher.Constraint("Horizontal", 3))
sketch16.addConstraint(Sketcher.Constraint("Vertical", 4))
sketch16.addConstraint(Sketcher.Constraint("Horizontal", 5))
sketch16.addConstraint(Sketcher.Constraint("Vertical", 6))
sketch16.addConstraint(Sketcher.Constraint("Horizontal", 7))
sketch16.addConstraint(Sketcher.Constraint("Vertical", 8))
sketch16.addConstraint(Sketcher.Constraint("Horizontal", 9))
sketch16.addConstraint(Sketcher.Constraint("Vertical", 10))
sketch16.addConstraint(Sketcher.Constraint("Horizontal", 11))
sketch16.addConstraint(Sketcher.Constraint("Symmetric", 3, 2, 10, 2, -2))
sketch16.addConstraint(Sketcher.Constraint("Equal", 3, 9))
sketch16.addConstraint(Sketcher.Constraint("Equal", 11, 4))
sketch16.addConstraint(Sketcher.Constraint("DistanceX", 1, 1, 1, 2, Q("2 mm")))
sketch16.addConstraint(Sketcher.Constraint("DistanceX", 5, 1, 5, 2, Q("8 mm")))
sketch16.addConstraint(Sketcher.Constraint("DistanceY", 0, 2, 0, 1, Q("5 mm")))
sketch16.addConstraint(Sketcher.Constraint("DistanceX", 4, 2, -1, 1, Q("4 mm")))
sketch16.addConstraint(Sketcher.Constraint("DistanceX", 0, 2, -1, 1, Q("8.7 mm")))
sketch16.addConstraint(Sketcher.Constraint("DistanceY", 0, 2, -1, 1, Q("36.1 mm")))
sketch16.addConstraint(Sketcher.Constraint("DistanceY", 4, 2, -1, 1, Q("39.6 mm")))
sketch16.addConstraint(Sketcher.Constraint("DistanceY", 8, 2, 8, 1, Q("4.434671 mm")))
pad11 = body.newObject("PartDesign::Pad", "Pad010")
pad11.Profile = sketch16
pad11.Length = 4
doc.recompute()

fillet4 = body.newObject("PartDesign::Fillet", "Fillet003")
fillet4.Base = (pad11, edges_at(pad11, [(-8.7, -33.6, 2.5), (0, -39.6, 2.5), (8.7, -33.317, 2.5)]))
fillet4.Radius = 2

doc.recompute()
